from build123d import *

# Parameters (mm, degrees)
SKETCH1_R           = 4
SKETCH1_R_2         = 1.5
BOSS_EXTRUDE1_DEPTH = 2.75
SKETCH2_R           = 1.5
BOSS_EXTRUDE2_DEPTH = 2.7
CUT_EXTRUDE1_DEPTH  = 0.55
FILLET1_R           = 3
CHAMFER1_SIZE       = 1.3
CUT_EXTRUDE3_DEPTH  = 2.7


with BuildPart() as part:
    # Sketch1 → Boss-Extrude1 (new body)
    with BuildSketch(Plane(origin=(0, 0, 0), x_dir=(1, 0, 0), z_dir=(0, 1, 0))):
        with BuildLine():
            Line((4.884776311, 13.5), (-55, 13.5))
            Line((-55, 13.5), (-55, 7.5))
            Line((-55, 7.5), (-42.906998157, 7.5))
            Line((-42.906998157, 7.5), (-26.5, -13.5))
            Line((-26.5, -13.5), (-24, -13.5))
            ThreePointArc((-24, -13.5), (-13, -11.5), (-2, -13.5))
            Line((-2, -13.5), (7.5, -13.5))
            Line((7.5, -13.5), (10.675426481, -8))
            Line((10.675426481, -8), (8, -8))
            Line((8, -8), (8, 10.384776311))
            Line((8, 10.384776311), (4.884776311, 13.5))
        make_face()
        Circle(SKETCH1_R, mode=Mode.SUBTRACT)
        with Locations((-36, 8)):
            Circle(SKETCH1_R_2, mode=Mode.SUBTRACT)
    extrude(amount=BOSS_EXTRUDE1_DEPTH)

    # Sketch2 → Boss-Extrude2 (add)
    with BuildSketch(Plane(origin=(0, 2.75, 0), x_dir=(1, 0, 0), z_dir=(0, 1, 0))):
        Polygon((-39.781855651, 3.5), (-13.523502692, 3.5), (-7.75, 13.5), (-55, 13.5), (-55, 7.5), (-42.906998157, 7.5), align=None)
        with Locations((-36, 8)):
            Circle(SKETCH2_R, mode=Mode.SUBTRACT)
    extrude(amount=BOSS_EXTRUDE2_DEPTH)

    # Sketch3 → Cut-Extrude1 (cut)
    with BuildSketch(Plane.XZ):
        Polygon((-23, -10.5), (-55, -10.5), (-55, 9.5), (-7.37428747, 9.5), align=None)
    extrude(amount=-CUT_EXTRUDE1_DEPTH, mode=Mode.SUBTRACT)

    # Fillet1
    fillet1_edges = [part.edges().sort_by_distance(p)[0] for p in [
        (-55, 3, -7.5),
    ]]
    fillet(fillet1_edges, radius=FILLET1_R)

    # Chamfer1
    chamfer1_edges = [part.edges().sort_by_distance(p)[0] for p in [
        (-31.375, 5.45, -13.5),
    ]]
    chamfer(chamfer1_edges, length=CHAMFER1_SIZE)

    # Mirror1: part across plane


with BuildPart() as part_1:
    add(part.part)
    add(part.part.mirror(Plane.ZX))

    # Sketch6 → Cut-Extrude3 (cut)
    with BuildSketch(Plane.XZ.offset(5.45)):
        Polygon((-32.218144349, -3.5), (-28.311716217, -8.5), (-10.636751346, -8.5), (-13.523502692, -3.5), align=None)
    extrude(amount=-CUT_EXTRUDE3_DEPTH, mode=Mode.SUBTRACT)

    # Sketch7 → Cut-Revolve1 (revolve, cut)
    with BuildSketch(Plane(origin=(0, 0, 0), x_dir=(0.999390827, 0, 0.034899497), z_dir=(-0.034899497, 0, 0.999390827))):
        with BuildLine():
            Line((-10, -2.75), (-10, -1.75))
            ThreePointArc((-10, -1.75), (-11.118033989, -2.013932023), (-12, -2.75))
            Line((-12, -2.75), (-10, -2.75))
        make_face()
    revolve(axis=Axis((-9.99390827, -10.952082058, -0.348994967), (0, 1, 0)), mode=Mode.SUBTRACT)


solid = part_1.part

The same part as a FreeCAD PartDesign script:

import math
import FreeCAD as App
import Part
import Sketcher
Q = App.Units.Quantity


def edges_at(feature, points):
    """Names of the edges that pass closest to the given points."""
    edges = feature.Shape.Edges
    near = lambda p: min(range(len(edges)), key=lambda i: edges[i].distToShape(Part.Vertex(*p))[0])
    return sorted({f"Edge{near(p) + 1}" for p in points})


def add_polygon(sketch, points):
    """Adds a closed chain of lines whose ends are joined by coincident constraints."""
    first, n = sketch.GeometryCount, len(points)
    for a, b in zip(points, points[1:] + points[:1]):
        sketch.addGeometry(Part.LineSegment(App.Vector(*a, 0), App.Vector(*b, 0)), False)
    for i in range(n):
        sketch.addConstraint(Sketcher.Constraint("Coincident", first + i, 2, first + (i + 1) % n, 1))

doc = App.newDocument("Part")
body = doc.addObject("PartDesign::Body", "Body")

# Sketch on XZ plane
sketch1 = body.newObject("Sketcher::SketchObject", "Sketch")
sketch1.AttachmentSupport = (doc.getObject("XZ_Plane"), [""])
sketch1.MapMode = "FlatFace"
sketch1.addGeometry([
    Part.LineSegment(App.Vector(4.884776, -13.5, 0), App.Vector(-55, -13.5, 0)),  # 0
    Part.LineSegment(App.Vector(-55, -13.5, 0), App.Vector(-55, -7.5, 0)),  # 1
    Part.LineSegment(App.Vector(-55, -7.5, 0), App.Vector(-42.906998, -7.5, 0)),  # 2
    Part.LineSegment(App.Vector(-42.906998, -7.5, 0), App.Vector(-26.5, 13.5, 0)),  # 3
    Part.LineSegment(App.Vector(-26.5, 13.5, 0), App.Vector(-24, 13.5, 0)),  # 4
    Part.ArcOfCircle(Part.Circle(App.Vector(-13, 42.75, 0), App.Vector(0, 0, 1), 31.25), math.radians(-110.609693), math.radians(-69.390307)),  # 5
    Part.LineSegment(App.Vector(-2, 13.5, 0), App.Vector(7.5, 13.5, 0)),  # 6
    Part.LineSegment(App.Vector(7.5, 13.5, 0), App.Vector(10.675426, 8, 0)),  # 7
    Part.LineSegment(App.Vector(10.675426, 8, 0), App.Vector(8, 8, 0)),  # 8
    Part.LineSegment(App.Vector(8, 8, 0), App.Vector(8, -10.384776, 0)),  # 9
    Part.LineSegment(App.Vector(8, -10.384776, 0), App.Vector(4.884776, -13.5, 0)),  # 10
    Part.Circle(App.Vector(0, 0, 0), App.Vector(0, 0, 1), 4),  # 11
    Part.Circle(App.Vector(-36, -8, 0), App.Vector(0, 0, 1), 1.5),  # 12
], False)
sketch1.addConstraint([
    Sketcher.Constraint("Coincident", 0, 2, 1, 1),
    Sketcher.Constraint("Coincident", 1, 2, 2, 1),
    Sketcher.Constraint("Coincident", 2, 2, 3, 1),
    Sketcher.Constraint("Coincident", 3, 2, 4, 1),
    Sketcher.Constraint("Coincident", 4, 2, 5, 1),
    Sketcher.Constraint("Coincident", 5, 2, 6, 1),
    Sketcher.Constraint("Coincident", 6, 2, 7, 1),
    Sketcher.Constraint("Coincident", 7, 2, 8, 1),
    Sketcher.Constraint("Coincident", 8, 2, 9, 1),
    Sketcher.Constraint("Coincident", 9, 2, 10, 1),
    Sketcher.Constraint("Coincident", 10, 2, 0, 1),
    Sketcher.Constraint("Horizontal", 0),
    Sketcher.Constraint("Vertical", 1),
    Sketcher.Constraint("Horizontal", 2),
    Sketcher.Constraint("Horizontal", 4),
    Sketcher.Constraint("Horizontal", 6),
    Sketcher.Constraint("Horizontal", 8),
    Sketcher.Constraint("Vertical", 9),
    Sketcher.Constraint("Coincident", 11, 3, -1, 1),
    Sketcher.Constraint("Horizontal", 4, 2, 5, 2),
    Sketcher.Constraint("Diameter", 11, 8.0),
    Sketcher.Constraint("Diameter", 12, 3.0),
    Sketcher.Constraint("DistanceY", 1, 1, 1, 2, 6.0),
    Sketcher.Constraint("Angle", 3, Q("52 deg")),
    Sketcher.Constraint("Angle", 7, Q("-60 deg")),
    Sketcher.Constraint("Angle", 10, Q("-135 deg")),
    Sketcher.Constraint("Radius", 5, 31.25),
    Sketcher.Constraint("DistanceX", 4, 1, 4, 2, 2.5),
    Sketcher.Constraint("DistanceX", 6, 1, 6, 2, 9.5),
    Sketcher.Constraint("DistanceX", 5, 3, -1, 1, 13.0),
    Sketcher.Constraint("DistanceX", 12, 3, -1, 1, 36.0),
    Sketcher.Constraint("DistanceY", 12, 3, -1, 1, 8.0),
    Sketcher.Constraint("DistanceX", 0, 2, -1, 1, 55.0),
    Sketcher.Constraint("DistanceX", 4, 2, -1, 1, 24.0),
    Sketcher.Constraint("DistanceY", -1, 1, 7, 2, 8.0),
    Sketcher.Constraint("DistanceX", -1, 1, 8, 2, 8.0),
    Sketcher.Constraint("DistanceY", 2, 2, 3, 2, 21.0),
    Sketcher.Constraint("DistanceY", 0, 2, -1, 1, 13.5),
    Sketcher.Constraint("Distance", 10, 4.405592),
])
pad1 = body.newObject("PartDesign::Pad", "Pad")
pad1.Profile = sketch1
pad1.Length = 2.75
pad1.Reversed = True

# Sketch on XZ plane
sketch2 = body.newObject("Sketcher::SketchObject", "Sketch001")
sketch2.AttachmentSupport = (doc.getObject("XZ_Plane"), [""])
sketch2.MapMode = "FlatFace"
sketch2.AttachmentOffset = App.Placement(App.Vector(0, 0, -2.75), App.Rotation())
add_polygon(sketch2, [(-39.781856, -3.5), (-13.523503, -3.5), (-7.75, -13.5), (-55, -13.5), (-55, -7.5), (-42.906998, -7.5)])  # lines 0-5
sketch2.addGeometry(Part.Circle(App.Vector(-36, -8, 0), App.Vector(0, 0, 1), 1.5), False)  # 6
sketch2.addConstraint([
    Sketcher.Constraint("Horizontal", 0),
    Sketcher.Constraint("Horizontal", 2),
    Sketcher.Constraint("Vertical", 3),
    Sketcher.Constraint("Horizontal", 4),
    Sketcher.Constraint("Diameter", 6, 3.0),
    Sketcher.Constraint("DistanceY", 3, 1, 3, 2, 6.0),
    Sketcher.Constraint("Angle", 1, Q("-60 deg")),
    Sketcher.Constraint("Angle", 5, Q("52 deg")),
    Sketcher.Constraint("DistanceX", 6, 3, -1, 1, 36.0),
    Sketcher.Constraint("DistanceY", 6, 3, -1, 1, 8.0),
    Sketcher.Constraint("DistanceX", 2, 2, -1, 1, 55.0),
    Sketcher.Constraint("DistanceY", 1, 2, 0, 2, 10.0),
    Sketcher.Constraint("DistanceX", 2, 2, 2, 1, 47.25),
    Sketcher.Constraint("DistanceY", 0, 2, -1, 1, 3.5),
    Sketcher.Constraint("DistanceX", 4, 1, 4, 2, 12.093002),
])
pad2 = body.newObject("PartDesign::Pad", "Pad001")
pad2.Profile = sketch2
pad2.Length = 2.7
pad2.Reversed = True

# Sketch on XZ plane
sketch3 = body.newObject("Sketcher::SketchObject", "Sketch002")
sketch3.AttachmentSupport = (doc.getObject("XZ_Plane"), [""])
sketch3.MapMode = "FlatFace"
add_polygon(sketch3, [(-55, -10.5), (-23, -10.5), (-7.374287, 9.5), (-55, 9.5)])  # lines 0-3
sketch3.addConstraint([
    Sketcher.Constraint("Horizontal", 0),
    Sketcher.Constraint("Horizontal", 2),
    Sketcher.Constraint("Vertical", 3),
    Sketcher.Constraint("DistanceX", 0, 1, 0, 2, 32.0),
    Sketcher.Constraint("DistanceY", 3, 2, 3, 1, 20.0),
    Sketcher.Constraint("Angle", 1, Q("52 deg")),
    Sketcher.Constraint("DistanceX", 0, 2, -1, 1, 23.0),
    Sketcher.Constraint("DistanceY", 0, 2, -1, 1, 10.5),
])
pocket1 = body.newObject("PartDesign::Pocket", "Pocket")
pocket1.Profile = sketch3
pocket1.Length = 0.55
doc.recompute()

fillet = body.newObject("PartDesign::Fillet", "Fillet")
fillet.Base = (pocket1, edges_at(pocket1, [(-55, 3, -7.5)]))
fillet.Radius = 3
doc.recompute()

chamfer = body.newObject("PartDesign::Chamfer", "Chamfer")
chamfer.Base = (fillet, edges_at(fillet, [(-31.375, 5.45, -13.5)]))
chamfer.Size = 1.3
body2 = doc.addObject("PartDesign::Body", "Body001")
doc.recompute()

body2.BaseFeature = body
doc.recompute()

mirroring = doc.addObject("Part::Mirroring", "Mirroring")
mirroring.Source = body
mirroring.Base = App.Vector(0, 0, 0)
mirroring.Normal = App.Vector(0, 1, 0)
body3 = doc.addObject("PartDesign::Body", "Body002")
body3.BaseFeature = mirroring
boolean = body2.newObject("PartDesign::Boolean", "Boolean")
boolean.Type = "Fuse"
boolean.addObjects([body3])
doc.recompute()

# Sketch on XZ plane
sketch4 = body2.newObject("Sketcher::SketchObject", "Sketch003")
sketch4.AttachmentSupport = (doc.getObject("XZ_Plane001"), [""])
sketch4.MapMode = "FlatFace"
sketch4.AttachmentOffset = App.Placement(App.Vector(0, 0, 5.45), App.Rotation())
add_polygon(sketch4, [(-32.218144, -3.5), (-28.311716, -8.5), (-10.636751, -8.5), (-13.523503, -3.5)])  # lines 0-3
sketch4.addConstraint([
    Sketcher.Constraint("Horizontal", 1),
    Sketcher.Constraint("Horizontal", 3),
    Sketcher.Constraint("Angle", 0, Q("-52 deg")),
    Sketcher.Constraint("Angle", 2, Q("120 deg")),
    Sketcher.Constraint("DistanceY", 1, 2, 2, 2, 5.0),
    Sketcher.Constraint("DistanceY", 0, 2, -1, 1, 8.5),
    Sketcher.Constraint("DistanceX", 3, 2, 3, 1, 18.694642),
    Sketcher.Constraint("DistanceX", 1, 2, -1, 1, 10.636751),
])
pocket2 = body2.newObject("PartDesign::Pocket", "Pocket001")
pocket2.Profile = sketch4
pocket2.Length = 2.7

# Sketch on an angled plane
sketch5 = body2.newObject("Sketcher::SketchObject", "Sketch004")
sketch5.Placement = App.Placement(App.Vector(0, 0, 0), App.Rotation(App.Vector(0.999390827, 0, 0.034899497), App.Vector(0, 1, 0), App.Vector(-0.034899497, 0, 0.999390827), "ZXY"))
sketch5.addGeometry([
    Part.LineSegment(App.Vector(-10, -2.75, 0), App.Vector(-10, -1.75, 0)),
    Part.ArcOfCircle(Part.Circle(App.Vector(-10, -4.25, 0), App.Vector(0, 0, 1), 2.5), math.radians(90), math.radians(143.130102)),
    Part.LineSegment(App.Vector(-12, -2.75, 0), App.Vector(-10, -2.75, 0)),
], False)
sketch5.addGeometry(Part.LineSegment(App.Vector(-10, -4.25, 0), App.Vector(-10, -1.75, 0)), True)  # axis
sketch5.addConstraint([
    Sketcher.Constraint("Coincident", 0, 2, 1, 1),
    Sketcher.Constraint("Coincident", 1, 2, 2, 1),
    Sketcher.Constraint("Coincident", 2, 2, 0, 1),
    Sketcher.Constraint("Vertical", 0),
    Sketcher.Constraint("Horizontal", 2),
    Sketcher.Constraint("Vertical", 3),
    Sketcher.Constraint("Coincident", 3, 1, 1, 3),
    Sketcher.Constraint("Coincident", 3, 2, 0, 2),
    Sketcher.Constraint("Radius", 1, 2.5),
    Sketcher.Constraint("DistanceX", 2, 1, 2, 2, 2.0),
    Sketcher.Constraint("DistanceX", 1, 3, -1, 1, 10.0),
    Sketcher.Constraint("DistanceY", 1, 3, -1, 1, 4.25),
])
groove = body2.newObject("PartDesign::Groove", "Groove")
groove.Profile = sketch5
groove.ReferenceAxis = (sketch5, ["Axis0"])
groove.Angle = 360
mirroring.Visibility = False

doc.recompute()
